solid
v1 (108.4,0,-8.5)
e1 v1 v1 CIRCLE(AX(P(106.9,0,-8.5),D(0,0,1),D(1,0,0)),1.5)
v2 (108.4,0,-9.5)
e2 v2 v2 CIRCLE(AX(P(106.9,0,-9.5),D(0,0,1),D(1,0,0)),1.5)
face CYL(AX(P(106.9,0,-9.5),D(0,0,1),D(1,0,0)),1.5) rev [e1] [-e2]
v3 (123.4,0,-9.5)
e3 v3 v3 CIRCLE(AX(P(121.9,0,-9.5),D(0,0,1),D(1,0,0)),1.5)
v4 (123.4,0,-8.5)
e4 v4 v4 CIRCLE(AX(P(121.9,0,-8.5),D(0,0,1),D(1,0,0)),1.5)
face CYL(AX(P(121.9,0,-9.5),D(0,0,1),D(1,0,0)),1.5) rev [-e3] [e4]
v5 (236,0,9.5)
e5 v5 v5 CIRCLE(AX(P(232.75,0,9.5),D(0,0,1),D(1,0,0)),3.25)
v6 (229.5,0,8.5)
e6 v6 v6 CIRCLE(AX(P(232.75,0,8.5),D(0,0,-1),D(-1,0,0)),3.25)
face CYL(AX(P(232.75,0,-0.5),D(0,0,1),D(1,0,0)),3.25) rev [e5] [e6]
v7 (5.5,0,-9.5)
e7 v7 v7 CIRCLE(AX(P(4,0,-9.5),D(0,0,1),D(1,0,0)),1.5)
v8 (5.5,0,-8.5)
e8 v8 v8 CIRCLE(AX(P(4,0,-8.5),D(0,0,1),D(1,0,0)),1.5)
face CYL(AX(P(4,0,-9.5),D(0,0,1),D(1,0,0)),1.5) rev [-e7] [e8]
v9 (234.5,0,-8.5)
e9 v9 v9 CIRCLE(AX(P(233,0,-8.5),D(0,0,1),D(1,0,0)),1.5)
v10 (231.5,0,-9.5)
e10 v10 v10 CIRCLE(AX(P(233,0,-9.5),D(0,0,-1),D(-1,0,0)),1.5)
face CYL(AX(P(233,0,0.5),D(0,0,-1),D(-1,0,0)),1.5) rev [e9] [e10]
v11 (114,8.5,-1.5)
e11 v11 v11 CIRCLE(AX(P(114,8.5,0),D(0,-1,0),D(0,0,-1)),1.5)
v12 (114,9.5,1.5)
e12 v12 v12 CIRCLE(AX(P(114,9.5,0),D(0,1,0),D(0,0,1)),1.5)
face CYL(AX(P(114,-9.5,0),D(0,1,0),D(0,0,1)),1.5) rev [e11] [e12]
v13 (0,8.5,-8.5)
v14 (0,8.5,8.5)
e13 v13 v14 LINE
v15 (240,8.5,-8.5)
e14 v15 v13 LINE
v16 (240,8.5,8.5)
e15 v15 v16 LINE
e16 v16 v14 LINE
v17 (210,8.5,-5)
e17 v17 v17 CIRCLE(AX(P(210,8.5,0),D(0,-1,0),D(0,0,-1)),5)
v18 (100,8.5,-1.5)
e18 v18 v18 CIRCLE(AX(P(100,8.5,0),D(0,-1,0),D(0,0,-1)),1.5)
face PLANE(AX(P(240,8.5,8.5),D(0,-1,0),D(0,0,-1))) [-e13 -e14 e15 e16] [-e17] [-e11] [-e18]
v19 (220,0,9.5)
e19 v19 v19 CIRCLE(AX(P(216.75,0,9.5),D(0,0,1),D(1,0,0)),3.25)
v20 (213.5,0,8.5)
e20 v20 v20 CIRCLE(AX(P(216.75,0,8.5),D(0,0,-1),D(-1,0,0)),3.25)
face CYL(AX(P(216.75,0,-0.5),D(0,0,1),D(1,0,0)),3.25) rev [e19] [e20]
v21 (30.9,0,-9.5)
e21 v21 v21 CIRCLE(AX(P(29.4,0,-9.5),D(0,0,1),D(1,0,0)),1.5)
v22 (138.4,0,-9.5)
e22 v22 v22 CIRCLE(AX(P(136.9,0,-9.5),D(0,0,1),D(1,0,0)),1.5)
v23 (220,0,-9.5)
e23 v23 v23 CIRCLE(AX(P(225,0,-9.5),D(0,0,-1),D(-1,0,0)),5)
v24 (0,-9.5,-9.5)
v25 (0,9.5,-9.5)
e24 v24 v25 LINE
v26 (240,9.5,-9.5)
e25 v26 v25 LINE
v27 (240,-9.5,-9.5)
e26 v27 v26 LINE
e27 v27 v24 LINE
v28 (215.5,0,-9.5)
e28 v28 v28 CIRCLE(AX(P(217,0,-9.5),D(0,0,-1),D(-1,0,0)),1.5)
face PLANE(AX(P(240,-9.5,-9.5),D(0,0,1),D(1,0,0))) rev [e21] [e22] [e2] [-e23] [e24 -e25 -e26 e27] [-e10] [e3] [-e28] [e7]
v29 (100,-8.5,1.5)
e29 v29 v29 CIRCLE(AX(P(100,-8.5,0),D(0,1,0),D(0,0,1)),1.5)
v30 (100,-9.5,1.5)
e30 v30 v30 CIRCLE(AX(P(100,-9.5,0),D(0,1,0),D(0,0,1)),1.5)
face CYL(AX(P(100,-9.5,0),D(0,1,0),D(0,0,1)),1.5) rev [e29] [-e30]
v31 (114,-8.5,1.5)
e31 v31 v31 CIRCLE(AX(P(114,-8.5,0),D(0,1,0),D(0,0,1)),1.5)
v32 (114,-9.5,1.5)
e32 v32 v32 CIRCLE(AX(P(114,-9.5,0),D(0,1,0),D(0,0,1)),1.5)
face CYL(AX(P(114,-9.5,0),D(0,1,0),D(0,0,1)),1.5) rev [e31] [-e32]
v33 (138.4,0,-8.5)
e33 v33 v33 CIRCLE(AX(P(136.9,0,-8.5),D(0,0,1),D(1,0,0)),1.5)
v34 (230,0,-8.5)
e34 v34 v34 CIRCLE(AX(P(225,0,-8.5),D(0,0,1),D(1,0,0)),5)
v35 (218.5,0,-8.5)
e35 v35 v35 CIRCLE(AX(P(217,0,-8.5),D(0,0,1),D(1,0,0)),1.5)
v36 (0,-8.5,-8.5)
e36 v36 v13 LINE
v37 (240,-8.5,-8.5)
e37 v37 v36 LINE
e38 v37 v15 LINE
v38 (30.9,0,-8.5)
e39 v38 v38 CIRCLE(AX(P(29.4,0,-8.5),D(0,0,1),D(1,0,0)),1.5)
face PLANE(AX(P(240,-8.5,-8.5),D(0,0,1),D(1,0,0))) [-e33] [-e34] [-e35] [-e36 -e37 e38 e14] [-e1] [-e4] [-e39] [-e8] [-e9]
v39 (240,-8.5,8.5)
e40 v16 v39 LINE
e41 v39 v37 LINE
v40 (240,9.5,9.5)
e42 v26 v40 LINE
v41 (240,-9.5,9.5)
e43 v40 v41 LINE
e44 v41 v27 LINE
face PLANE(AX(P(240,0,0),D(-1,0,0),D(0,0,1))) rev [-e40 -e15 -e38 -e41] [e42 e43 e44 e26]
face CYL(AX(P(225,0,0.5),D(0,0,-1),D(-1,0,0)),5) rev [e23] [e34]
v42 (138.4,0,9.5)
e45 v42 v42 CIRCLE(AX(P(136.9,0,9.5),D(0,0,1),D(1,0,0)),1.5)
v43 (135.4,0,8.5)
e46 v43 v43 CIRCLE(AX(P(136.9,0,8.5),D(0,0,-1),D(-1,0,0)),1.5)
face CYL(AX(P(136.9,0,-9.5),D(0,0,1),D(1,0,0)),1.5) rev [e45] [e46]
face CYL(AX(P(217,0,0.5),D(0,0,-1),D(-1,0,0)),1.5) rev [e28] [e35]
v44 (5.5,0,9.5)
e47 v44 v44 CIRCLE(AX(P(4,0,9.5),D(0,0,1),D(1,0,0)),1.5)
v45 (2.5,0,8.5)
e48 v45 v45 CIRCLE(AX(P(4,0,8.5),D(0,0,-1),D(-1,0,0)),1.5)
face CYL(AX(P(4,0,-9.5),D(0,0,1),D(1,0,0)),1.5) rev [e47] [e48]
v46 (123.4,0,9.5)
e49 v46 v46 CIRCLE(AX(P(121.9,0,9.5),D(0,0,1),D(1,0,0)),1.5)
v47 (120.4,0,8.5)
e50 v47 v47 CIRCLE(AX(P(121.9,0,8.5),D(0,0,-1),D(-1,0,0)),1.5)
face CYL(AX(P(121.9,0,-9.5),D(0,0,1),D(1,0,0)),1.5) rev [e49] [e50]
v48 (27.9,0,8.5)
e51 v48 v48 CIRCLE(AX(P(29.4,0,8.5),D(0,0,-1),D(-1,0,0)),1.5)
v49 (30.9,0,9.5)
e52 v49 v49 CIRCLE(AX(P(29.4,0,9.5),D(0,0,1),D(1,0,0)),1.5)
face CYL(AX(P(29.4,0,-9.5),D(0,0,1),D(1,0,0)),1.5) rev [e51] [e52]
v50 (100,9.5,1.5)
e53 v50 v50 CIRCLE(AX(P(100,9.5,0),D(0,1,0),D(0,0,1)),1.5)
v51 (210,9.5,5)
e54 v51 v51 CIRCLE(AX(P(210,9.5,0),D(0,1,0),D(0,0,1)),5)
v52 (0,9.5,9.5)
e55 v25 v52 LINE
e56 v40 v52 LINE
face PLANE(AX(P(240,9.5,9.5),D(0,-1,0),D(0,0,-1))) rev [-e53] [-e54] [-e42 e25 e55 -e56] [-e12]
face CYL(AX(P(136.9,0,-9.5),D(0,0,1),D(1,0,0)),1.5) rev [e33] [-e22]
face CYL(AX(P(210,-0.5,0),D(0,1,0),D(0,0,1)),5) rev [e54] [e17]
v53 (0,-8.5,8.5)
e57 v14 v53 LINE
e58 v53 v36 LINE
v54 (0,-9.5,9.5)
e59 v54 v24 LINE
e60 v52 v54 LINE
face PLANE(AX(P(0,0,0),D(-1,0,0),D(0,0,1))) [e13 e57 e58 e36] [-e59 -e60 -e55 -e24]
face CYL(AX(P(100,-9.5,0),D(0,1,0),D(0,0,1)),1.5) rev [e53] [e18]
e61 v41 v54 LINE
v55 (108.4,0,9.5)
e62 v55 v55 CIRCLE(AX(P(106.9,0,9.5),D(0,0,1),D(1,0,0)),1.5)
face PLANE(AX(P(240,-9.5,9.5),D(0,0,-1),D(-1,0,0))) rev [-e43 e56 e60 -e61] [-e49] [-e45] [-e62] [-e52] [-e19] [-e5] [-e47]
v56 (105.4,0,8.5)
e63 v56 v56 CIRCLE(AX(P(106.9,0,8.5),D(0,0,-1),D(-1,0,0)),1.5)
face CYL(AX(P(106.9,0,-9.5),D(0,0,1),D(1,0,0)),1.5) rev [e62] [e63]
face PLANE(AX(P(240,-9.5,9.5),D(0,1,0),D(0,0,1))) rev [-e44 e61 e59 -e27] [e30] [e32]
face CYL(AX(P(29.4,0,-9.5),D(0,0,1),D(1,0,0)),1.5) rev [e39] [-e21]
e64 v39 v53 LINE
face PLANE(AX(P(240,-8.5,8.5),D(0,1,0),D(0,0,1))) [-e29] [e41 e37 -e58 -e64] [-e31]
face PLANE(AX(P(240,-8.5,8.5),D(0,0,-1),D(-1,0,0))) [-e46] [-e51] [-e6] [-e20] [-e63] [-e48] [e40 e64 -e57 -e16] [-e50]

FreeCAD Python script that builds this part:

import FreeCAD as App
import Part
import Sketcher

V = App.Vector
Q = App.Units.Quantity

doc = App.newDocument("Part")
body = doc.addObject("PartDesign::Body", "Body")

# Sketch on YZ plane
sketch1 = body.newObject("Sketcher::SketchObject", "Sketch")
sketch1.AttachmentSupport = (doc.getObject("YZ_Plane"), [""])
sketch1.MapMode = "FlatFace"
sketch1.addGeometry(Part.LineSegment(V(10, 10, 0), V(-10, 10, 0)), False)
sketch1.addGeometry(Part.LineSegment(V(-10, 10, 0), V(-10, -10, 0)), False)
sketch1.addGeometry(Part.LineSegment(V(-10, -10, 0), V(10, -10, 0)), False)
sketch1.addGeometry(Part.LineSegment(V(10, -10, 0), V(10, 10, 0)), False)
sketch1.addGeometry(Part.LineSegment(V(-8, -8, 0), V(-8, 8, 0)), False)
sketch1.addGeometry(Part.LineSegment(V(-8, 8, 0), V(8, 8, 0)), False)
sketch1.addGeometry(Part.LineSegment(V(8, 8, 0), V(8, -8, 0)), False)
sketch1.addGeometry(Part.LineSegment(V(8, -8, 0), V(-8, -8, 0)), False)
sketch1.addConstraint(Sketcher.Constraint("Coincident", 0, 2, 1, 1))
sketch1.addConstraint(Sketcher.Constraint("Coincident", 1, 2, 2, 1))
sketch1.addConstraint(Sketcher.Constraint("Coincident", 2, 2, 3, 1))
sketch1.addConstraint(Sketcher.Constraint("Coincident", 3, 2, 0, 1))
sketch1.addConstraint(Sketcher.Constraint("Coincident", 4, 2, 5, 1))
sketch1.addConstraint(Sketcher.Constraint("Coincident", 5, 2, 6, 1))
sketch1.addConstraint(Sketcher.Constraint("Coincident", 6, 2, 7, 1))
sketch1.addConstraint(Sketcher.Constraint("Coincident", 7, 2, 4, 1))
sketch1.addConstraint(Sketcher.Constraint("Horizontal", 0))
sketch1.addConstraint(Sketcher.Constraint("Vertical", 1))
sketch1.addConstraint(Sketcher.Constraint("Horizontal", 2))
sketch1.addConstraint(Sketcher.Constraint("Vertical", 3))
sketch1.addConstraint(Sketcher.Constraint("Vertical", 4))
sketch1.addConstraint(Sketcher.Constraint("Horizontal", 5))
sketch1.addConstraint(Sketcher.Constraint("Vertical", 6))
sketch1.addConstraint(Sketcher.Constraint("Horizontal", 7))
sketch1.addConstraint(Sketcher.Constraint("Symmetric", 0, 2, 2, 2, -1, 1))
sketch1.addConstraint(Sketcher.Constraint("Symmetric", 4, 2, 6, 2, -1, 1))
sketch1.addConstraint(Sketcher.Constraint("Equal", 2, 1))
sketch1.addConstraint(Sketcher.Constraint("Equal", 7, 4))
sketch1.addConstraint(Sketcher.Constraint("DistanceX", 0, 2, 0, 1, Q("19 mm")))
sketch1.addConstraint(Sketcher.Constraint("DistanceX", 5, 1, 5, 2, Q("17 mm")))
pad1 = body.newObject("PartDesign::Pad", "Pad")
pad1.Profile = sketch1
pad1.Length = 240

# Sketch on XY plane
sketch2 = body.newObject("Sketcher::SketchObject", "Sketch001")
sketch2.AttachmentSupport = (doc.getObject("XY_Plane"), [""])
sketch2.MapMode = "FlatFace"
sketch2.AttachmentOffset = App.Placement(V(0, 0, 9.5), App.Rotation())
sketch2.addGeometry(Part.Circle(V(4, 0, 0), V(0, 0, 1), 1.5), False)
sketch2.addGeometry(Part.Circle(V(29.4, 0, 0), V(0, 0, 1), 1.5), False)
sketch2.addGeometry(Part.Circle(V(106.9, 0, 0), V(0, 0, 1), 1.5), False)
sketch2.addGeometry(Part.Circle(V(121.9, 0, 0), V(0, 0, 1), 1.5), False)
sketch2.addGeometry(Part.Circle(V(136.9, 0, 0), V(0, 0, 1), 1.5), False)
sketch2.addConstraint(Sketcher.Constraint("Equal", 0, 1))
sketch2.addConstraint(Sketcher.Constraint("Equal", 1, 2))
sketch2.addConstraint(Sketcher.Constraint("Equal", 2, 3))
sketch2.addConstraint(Sketcher.Constraint("Equal", 3, 4))
sketch2.addConstraint(Sketcher.Constraint("PointOnObject", 0, 3, -1))
sketch2.addConstraint(Sketcher.Constraint("PointOnObject", 1, 3, -1))
sketch2.addConstraint(Sketcher.Constraint("PointOnObject", 2, 3, -1))
sketch2.addConstraint(Sketcher.Constraint("PointOnObject", 3, 3, -1))
sketch2.addConstraint(Sketcher.Constraint("PointOnObject", 4, 3, -1))
sketch2.addConstraint(Sketcher.Constraint("Diameter", 0, Q("3 mm")))
sketch2.addConstraint(Sketcher.Constraint("DistanceX", -1, 1, 0, 3, Q("4 mm")))
sketch2.addConstraint(Sketcher.Constraint("DistanceX", 2, 3, 3, 3, Q("15 mm")))
sketch2.addConstraint(Sketcher.Constraint("DistanceX", 3, 3, 4, 3, Q("15 mm")))
sketch2.addConstraint(Sketcher.Constraint("DistanceX", -1, 1, 1, 3, Q("29.4 mm")))
sketch2.addConstraint(Sketcher.Constraint("DistanceX", -1, 1, 2, 3, Q("106.9 mm")))
pocket1 = body.newObject("PartDesign::Pocket", "Pocket")
pocket1.Profile = sketch2
pocket1.Type = "ThroughAll"

# Sketch on XZ plane
sketch3 = body.newObject("Sketcher::SketchObject", "Sketch002")
sketch3.AttachmentSupport = (doc.getObject("XZ_Plane"), [""])
sketch3.MapMode = "FlatFace"
sketch3.AttachmentOffset = App.Placement(V(0, 0, -9.5), App.Rotation())
sketch3.addGeometry(Part.Circle(V(100, 0, 0), V(0, 0, 1), 1.5), False)
sketch3.addGeometry(Part.Circle(V(114, 0, 0), V(0, 0, 1), 1.5), False)
sketch3.addConstraint(Sketcher.Constraint("Equal", 0, 1))
sketch3.addConstraint(Sketcher.Constraint("PointOnObject", 0, 3, -1))
sketch3.addConstraint(Sketcher.Constraint("PointOnObject", 1, 3, -1))
sketch3.addConstraint(Sketcher.Constraint("Diameter", 0, Q("3 mm")))
sketch3.addConstraint(Sketcher.Constraint("DistanceX", -1, 1, 0, 3, Q("100 mm")))
sketch3.addConstraint(Sketcher.Constraint("DistanceX", -1, 1, 1, 3, Q("114 mm")))
pocket2 = body.newObject("PartDesign::Pocket", "Pocket001")
pocket2.Profile = sketch3
pocket2.Type = "ThroughAll"
pocket2.Reversed = True

# Sketch on XZ plane
sketch4 = body.newObject("Sketcher::SketchObject", "Sketch003")
sketch4.AttachmentSupport = (doc.getObject("XZ_Plane"), [""])
sketch4.MapMode = "FlatFace"
sketch4.AttachmentOffset = App.Placement(V(0, 0, -9.5), App.Rotation())
sketch4.addGeometry(Part.Circle(V(210, 0, 0), V(0, 0, 1), 5), False)
sketch4.addConstraint(Sketcher.Constraint("PointOnObject", 0, 3, -1))
sketch4.addConstraint(Sketcher.Constraint("Diameter", 0, Q("10 mm")))
sketch4.addConstraint(Sketcher.Constraint("DistanceX", -1, 1, 0, 3, Q("210 mm")))
pocket3 = body.newObject("PartDesign::Pocket", "Pocket002")
pocket3.Profile = sketch4
pocket3.Length = 10
pocket3.Reversed = True

# Sketch on XY plane
sketch5 = body.newObject("Sketcher::SketchObject", "Sketch004")
sketch5.AttachmentSupport = (doc.getObject("XY_Plane"), [""])
sketch5.MapMode = "FlatFace"
sketch5.AttachmentOffset = App.Placement(V(0, 0, 9.5), App.Rotation())
sketch5.addGeometry(Part.Circle(V(232.8, 0, 0), V(0, 0, 1), 3.2), False)
sketch5.addGeometry(Part.Circle(V(216.8, 0, 0), V(0, 0, 1), 3.2), False)
sketch5.addConstraint(Sketcher.Constraint("Equal", 0, 1))
sketch5.addConstraint(Sketcher.Constraint("PointOnObject", 0, 3, -1))
sketch5.addConstraint(Sketcher.Constraint("PointOnObject", 1, 3, -1))
sketch5.addConstraint(Sketcher.Constraint("Diameter", 0, Q("6.5 mm")))
sketch5.addConstraint(Sketcher.Constraint("DistanceX", 1, 3, 0, 3, Q("16 mm")))
sketch5.addConstraint(Sketcher.Constraint("DistanceX", -1, 1, 0, 3, Q("232.75 mm")))
pocket4 = body.newObject("PartDesign::Pocket", "Pocket003")
pocket4.Profile = sketch5
pocket4.Length = 10

# Sketch on XY plane
sketch6 = body.newObject("Sketcher::SketchObject", "Sketch005")
sketch6.AttachmentSupport = (doc.getObject("XY_Plane"), [""])
sketch6.MapMode = "FlatFace"
sketch6.AttachmentOffset = App.Placement(V(0, 0, -9.5), App.Rotation())
sketch6.addGeometry(Part.Circle(V(225, 0, 0), V(0, 0, 1), 5), False)
sketch6.addGeometry(Part.Circle(V(217, 0, 0), V(0, 0, 1), 1.5), False)
sketch6.addGeometry(Part.Circle(V(233, 0, 0), V(0, 0, 1), 1.5), False)
sketch6.addConstraint(Sketcher.Constraint("Equal", 1, 2))
sketch6.addConstraint(Sketcher.Constraint("PointOnObject", 0, 3, -1))
sketch6.addConstraint(Sketcher.Constraint("PointOnObject", 1, 3, -1))
sketch6.addConstraint(Sketcher.Constraint("PointOnObject", 2, 3, -1))
sketch6.addConstraint(Sketcher.Constraint("Diameter", 0, Q("10 mm")))
sketch6.addConstraint(Sketcher.Constraint("Diameter", 1, Q("3 mm")))
sketch6.addConstraint(Sketcher.Constraint("DistanceX", -1, 1, 0, 3, Q("225 mm")))
sketch6.addConstraint(Sketcher.Constraint("DistanceX", -1, 1, 1, 3, Q("217 mm")))
sketch6.addConstraint(Sketcher.Constraint("DistanceX", -1, 1, 2, 3, Q("233 mm")))
pocket5 = body.newObject("PartDesign::Pocket", "Pocket004")
pocket5.Profile = sketch6
pocket5.Length = 10
pocket5.Reversed = True

doc.recompute()
